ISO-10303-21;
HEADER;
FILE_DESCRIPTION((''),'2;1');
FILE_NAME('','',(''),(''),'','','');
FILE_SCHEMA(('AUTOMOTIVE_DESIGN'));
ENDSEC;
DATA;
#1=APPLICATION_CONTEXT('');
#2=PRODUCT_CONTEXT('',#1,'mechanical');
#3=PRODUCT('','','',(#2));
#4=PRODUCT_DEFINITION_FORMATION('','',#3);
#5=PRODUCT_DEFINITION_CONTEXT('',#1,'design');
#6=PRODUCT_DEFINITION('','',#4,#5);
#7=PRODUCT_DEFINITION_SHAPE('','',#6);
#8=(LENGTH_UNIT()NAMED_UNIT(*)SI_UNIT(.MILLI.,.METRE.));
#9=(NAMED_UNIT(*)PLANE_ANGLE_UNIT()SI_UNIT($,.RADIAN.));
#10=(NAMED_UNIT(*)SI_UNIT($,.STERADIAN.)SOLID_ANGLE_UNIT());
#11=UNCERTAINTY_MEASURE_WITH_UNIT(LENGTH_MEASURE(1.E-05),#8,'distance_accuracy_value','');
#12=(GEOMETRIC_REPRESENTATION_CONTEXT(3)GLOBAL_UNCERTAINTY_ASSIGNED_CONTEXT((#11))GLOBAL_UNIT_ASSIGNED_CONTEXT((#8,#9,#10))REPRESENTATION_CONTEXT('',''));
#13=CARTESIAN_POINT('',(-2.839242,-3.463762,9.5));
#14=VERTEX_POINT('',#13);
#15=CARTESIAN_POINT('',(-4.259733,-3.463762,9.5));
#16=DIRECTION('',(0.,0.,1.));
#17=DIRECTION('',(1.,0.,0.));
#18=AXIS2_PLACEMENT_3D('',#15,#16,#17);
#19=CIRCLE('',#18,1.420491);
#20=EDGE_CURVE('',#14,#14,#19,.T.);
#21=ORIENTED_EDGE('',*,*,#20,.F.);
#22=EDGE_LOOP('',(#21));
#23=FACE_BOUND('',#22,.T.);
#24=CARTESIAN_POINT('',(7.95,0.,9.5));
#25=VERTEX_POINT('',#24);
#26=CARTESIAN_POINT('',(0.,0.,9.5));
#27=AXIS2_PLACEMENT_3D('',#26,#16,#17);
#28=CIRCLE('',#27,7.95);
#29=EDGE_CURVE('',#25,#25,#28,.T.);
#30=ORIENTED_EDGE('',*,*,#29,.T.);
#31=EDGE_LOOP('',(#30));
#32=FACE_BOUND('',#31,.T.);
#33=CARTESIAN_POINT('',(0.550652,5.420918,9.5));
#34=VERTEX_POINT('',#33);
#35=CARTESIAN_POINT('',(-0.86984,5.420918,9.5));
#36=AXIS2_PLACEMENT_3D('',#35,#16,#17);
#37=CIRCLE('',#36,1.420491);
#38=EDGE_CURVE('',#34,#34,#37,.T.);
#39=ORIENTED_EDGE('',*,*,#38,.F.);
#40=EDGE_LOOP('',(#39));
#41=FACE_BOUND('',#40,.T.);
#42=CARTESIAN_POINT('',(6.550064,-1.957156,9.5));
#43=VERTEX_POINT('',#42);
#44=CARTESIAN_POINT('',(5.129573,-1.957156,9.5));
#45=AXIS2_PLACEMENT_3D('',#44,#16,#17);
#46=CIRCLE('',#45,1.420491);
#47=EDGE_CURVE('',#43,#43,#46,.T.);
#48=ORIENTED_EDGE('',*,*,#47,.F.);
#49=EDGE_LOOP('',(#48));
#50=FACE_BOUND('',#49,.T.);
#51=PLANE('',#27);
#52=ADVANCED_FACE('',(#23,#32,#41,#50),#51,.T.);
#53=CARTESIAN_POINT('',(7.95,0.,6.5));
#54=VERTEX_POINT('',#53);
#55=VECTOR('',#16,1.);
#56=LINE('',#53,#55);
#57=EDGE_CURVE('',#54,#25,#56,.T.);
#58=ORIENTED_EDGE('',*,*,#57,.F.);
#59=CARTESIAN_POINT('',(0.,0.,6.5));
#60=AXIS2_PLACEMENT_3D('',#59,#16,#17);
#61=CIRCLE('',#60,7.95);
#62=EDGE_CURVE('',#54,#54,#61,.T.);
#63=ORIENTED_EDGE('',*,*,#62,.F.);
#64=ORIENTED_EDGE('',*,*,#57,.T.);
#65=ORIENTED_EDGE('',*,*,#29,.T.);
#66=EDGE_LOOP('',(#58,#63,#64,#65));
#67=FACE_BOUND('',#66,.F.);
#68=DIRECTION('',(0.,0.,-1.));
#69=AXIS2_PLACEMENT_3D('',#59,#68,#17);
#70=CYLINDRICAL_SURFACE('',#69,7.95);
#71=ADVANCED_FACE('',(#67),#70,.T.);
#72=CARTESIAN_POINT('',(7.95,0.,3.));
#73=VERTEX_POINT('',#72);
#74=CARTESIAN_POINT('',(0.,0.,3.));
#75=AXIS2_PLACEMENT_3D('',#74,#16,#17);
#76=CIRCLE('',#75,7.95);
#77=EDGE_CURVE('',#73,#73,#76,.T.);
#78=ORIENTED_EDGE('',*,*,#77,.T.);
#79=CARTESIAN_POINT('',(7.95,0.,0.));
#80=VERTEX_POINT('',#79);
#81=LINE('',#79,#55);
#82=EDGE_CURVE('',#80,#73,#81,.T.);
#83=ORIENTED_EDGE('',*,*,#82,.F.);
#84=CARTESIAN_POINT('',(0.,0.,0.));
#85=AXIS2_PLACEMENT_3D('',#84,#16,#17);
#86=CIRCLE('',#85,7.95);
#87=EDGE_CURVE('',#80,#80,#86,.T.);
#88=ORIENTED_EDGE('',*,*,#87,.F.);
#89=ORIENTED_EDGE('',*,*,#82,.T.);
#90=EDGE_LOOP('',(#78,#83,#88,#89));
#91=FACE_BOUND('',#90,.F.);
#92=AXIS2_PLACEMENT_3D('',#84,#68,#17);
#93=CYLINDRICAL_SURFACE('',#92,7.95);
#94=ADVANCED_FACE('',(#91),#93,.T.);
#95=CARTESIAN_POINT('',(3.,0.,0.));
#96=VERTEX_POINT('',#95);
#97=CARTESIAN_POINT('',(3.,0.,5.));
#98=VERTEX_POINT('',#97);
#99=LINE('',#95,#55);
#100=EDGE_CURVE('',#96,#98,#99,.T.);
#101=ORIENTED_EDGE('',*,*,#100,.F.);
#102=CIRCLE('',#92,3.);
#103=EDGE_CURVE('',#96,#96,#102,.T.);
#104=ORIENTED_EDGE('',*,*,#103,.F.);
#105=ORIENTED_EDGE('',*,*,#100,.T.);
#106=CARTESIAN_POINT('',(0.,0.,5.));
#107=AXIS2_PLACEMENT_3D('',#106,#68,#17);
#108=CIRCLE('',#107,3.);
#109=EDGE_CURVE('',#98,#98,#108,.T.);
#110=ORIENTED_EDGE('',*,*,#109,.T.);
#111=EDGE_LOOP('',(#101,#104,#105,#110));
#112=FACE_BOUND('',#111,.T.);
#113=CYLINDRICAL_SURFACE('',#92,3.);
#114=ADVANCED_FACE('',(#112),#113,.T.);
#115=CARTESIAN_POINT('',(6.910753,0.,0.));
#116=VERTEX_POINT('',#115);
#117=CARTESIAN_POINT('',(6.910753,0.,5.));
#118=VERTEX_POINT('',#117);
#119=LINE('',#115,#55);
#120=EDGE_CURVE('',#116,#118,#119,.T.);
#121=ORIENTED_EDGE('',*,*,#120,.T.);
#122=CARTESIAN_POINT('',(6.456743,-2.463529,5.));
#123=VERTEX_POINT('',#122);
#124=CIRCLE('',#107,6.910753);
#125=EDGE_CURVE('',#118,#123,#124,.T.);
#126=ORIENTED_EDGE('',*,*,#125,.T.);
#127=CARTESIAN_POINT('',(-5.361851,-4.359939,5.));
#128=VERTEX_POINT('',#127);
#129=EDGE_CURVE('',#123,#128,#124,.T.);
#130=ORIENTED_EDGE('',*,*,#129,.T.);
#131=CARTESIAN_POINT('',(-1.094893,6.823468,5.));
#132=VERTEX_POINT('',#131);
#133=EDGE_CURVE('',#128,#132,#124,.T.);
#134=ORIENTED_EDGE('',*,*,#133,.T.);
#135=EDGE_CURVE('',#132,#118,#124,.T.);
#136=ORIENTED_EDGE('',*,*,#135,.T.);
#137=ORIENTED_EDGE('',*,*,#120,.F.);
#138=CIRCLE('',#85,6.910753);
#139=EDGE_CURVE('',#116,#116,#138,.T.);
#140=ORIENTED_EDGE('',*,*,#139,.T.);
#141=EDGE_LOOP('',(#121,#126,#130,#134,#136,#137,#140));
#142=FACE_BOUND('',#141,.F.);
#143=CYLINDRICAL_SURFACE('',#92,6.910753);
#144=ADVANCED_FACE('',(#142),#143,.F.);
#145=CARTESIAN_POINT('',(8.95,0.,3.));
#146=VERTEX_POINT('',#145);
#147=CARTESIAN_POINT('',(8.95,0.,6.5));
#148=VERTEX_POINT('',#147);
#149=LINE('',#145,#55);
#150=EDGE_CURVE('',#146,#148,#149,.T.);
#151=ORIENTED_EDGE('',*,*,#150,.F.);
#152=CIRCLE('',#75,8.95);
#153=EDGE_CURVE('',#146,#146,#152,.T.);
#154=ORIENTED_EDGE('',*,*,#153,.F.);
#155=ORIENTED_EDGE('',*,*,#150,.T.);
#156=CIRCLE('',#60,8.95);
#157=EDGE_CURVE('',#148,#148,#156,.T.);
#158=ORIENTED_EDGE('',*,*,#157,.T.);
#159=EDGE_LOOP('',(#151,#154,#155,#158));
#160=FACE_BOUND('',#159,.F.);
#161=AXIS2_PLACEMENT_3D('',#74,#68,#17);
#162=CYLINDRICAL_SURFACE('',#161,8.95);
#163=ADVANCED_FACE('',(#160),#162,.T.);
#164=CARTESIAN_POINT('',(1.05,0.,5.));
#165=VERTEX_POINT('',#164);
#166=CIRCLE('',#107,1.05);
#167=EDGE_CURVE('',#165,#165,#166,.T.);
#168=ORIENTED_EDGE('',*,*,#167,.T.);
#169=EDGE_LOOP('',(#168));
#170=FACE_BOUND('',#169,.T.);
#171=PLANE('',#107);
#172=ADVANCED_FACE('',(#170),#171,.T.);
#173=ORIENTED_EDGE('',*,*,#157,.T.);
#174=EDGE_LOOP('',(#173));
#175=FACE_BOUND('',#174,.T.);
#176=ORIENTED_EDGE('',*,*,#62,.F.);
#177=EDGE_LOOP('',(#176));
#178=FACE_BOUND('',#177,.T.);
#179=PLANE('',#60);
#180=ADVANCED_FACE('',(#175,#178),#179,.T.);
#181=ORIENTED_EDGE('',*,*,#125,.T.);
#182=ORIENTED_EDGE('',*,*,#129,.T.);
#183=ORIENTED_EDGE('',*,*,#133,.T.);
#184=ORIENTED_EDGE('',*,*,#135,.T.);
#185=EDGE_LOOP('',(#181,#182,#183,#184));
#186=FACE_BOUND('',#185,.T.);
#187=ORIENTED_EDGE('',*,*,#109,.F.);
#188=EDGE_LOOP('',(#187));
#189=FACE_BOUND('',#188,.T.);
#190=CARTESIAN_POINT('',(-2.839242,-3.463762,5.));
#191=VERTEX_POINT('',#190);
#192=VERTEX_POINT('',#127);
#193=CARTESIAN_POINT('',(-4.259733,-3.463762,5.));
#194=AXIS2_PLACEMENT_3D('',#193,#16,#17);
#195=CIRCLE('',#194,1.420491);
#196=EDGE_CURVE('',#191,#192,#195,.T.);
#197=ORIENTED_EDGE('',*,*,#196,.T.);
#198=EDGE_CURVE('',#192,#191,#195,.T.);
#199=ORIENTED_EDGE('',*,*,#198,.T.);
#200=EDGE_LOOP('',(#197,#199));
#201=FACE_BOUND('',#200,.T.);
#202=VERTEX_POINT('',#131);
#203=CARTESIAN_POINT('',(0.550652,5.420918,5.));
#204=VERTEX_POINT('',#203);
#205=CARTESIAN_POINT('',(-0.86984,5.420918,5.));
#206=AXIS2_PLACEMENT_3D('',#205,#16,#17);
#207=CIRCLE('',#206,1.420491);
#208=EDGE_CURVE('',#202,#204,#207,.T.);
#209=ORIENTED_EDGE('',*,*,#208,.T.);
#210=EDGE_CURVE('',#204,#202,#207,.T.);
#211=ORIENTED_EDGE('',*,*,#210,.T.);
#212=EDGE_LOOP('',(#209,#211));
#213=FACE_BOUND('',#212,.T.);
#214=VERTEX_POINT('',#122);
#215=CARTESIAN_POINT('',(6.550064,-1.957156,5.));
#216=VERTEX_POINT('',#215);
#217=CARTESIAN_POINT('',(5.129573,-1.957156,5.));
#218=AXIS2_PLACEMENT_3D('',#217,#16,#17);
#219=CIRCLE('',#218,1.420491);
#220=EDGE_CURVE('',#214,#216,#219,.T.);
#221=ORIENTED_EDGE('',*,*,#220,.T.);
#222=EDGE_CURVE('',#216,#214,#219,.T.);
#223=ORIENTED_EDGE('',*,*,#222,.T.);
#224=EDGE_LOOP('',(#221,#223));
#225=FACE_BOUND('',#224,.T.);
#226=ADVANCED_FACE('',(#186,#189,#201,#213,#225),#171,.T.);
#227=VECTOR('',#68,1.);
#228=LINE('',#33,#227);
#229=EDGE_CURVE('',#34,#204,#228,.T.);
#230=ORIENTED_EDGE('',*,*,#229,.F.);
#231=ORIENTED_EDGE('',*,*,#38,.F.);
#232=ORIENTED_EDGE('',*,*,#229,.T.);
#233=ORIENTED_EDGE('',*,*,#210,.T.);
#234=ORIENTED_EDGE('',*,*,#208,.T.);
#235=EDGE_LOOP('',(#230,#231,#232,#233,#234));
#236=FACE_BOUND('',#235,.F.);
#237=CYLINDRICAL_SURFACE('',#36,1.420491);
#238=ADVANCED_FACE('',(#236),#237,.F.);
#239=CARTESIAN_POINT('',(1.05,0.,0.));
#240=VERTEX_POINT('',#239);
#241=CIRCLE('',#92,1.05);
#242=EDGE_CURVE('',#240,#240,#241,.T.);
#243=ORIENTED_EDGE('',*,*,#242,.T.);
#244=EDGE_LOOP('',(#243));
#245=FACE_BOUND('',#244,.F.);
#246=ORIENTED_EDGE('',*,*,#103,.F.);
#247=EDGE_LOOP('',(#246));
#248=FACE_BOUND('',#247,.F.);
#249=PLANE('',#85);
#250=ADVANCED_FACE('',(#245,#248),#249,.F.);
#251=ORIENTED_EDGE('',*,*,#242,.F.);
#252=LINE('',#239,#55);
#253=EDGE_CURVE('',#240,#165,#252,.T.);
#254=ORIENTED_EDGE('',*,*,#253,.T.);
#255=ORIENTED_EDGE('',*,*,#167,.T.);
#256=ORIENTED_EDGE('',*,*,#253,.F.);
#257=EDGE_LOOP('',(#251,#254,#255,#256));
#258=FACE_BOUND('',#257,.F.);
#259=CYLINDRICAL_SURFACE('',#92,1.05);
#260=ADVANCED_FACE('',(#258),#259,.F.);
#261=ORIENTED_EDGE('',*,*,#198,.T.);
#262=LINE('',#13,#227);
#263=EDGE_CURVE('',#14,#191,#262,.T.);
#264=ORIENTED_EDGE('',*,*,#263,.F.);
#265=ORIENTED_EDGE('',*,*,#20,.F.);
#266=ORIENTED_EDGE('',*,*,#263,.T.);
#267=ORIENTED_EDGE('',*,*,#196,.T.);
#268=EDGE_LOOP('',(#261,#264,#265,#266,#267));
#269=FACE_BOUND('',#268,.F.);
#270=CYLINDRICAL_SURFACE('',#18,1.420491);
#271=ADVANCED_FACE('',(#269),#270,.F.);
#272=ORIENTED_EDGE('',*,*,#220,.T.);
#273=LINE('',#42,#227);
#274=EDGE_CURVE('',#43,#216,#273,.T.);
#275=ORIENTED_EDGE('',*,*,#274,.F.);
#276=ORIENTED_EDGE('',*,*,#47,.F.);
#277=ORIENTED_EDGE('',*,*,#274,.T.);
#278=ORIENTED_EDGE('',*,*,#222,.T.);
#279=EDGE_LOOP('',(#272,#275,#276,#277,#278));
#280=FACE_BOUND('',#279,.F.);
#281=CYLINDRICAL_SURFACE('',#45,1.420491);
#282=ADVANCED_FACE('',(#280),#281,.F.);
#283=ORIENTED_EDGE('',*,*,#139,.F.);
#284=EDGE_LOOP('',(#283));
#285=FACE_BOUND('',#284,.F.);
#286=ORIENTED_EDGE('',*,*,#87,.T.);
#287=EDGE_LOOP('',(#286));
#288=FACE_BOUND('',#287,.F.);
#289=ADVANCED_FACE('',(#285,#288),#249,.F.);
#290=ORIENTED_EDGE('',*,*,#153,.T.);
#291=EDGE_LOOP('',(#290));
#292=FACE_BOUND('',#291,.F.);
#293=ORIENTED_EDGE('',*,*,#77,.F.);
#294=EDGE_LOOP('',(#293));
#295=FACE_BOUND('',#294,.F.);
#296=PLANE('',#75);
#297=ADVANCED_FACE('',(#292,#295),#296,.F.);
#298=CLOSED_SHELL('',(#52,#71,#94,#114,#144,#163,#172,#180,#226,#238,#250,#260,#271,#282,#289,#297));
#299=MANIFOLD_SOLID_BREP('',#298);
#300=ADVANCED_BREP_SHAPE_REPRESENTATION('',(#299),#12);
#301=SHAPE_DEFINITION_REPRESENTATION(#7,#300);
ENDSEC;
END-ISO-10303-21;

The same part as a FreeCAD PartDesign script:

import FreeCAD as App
import Part
import Sketcher

doc = App.newDocument("Part")
params = doc.addObject("Spreadsheet::Sheet", "Params")
for row, (alias, value) in enumerate([
    ("sketch1_diameter", "15.9 mm"),
    ("pad1_length", "3 mm"),
    ("sketch2_diameter", "17.9 mm"),
    ("pad2_length", "3.5 mm"),
    ("sketch3_diameter", "15.9 mm"),
    ("pad3_length", "3 mm"),
    ("sketch5_diameter", "6 mm"),
    ("sketch5_diameter2", "2.1 mm"),
    ("pocket2_length", "5 mm"),
], start=1):
    params.set(f"A{row}", alias)
    params.set(f"B{row}", "=" + value)
    params.setAlias(f"B{row}", alias)

body = doc.addObject("PartDesign::Body", "Body")

sketch1 = body.newObject("Sketcher::SketchObject", "Sketch")
sketch1.AttachmentSupport = (doc.getObject("XY_Plane"), [""])
sketch1.MapMode = "FlatFace"
sketch1.addGeometry(Part.Circle(App.Vector(0, 0, 0), App.Vector(0, 0, 1), 8), False)
sketch1.addConstraint([
    Sketcher.Constraint("Coincident", 0, 3, -1, 1),
    Sketcher.Constraint("Diameter", 0, 15.9),
])
sketch1.setExpression("Constraints[1]", "Params.sketch1_diameter")
pad1 = body.newObject("PartDesign::Pad", "Pad")
pad1.Profile = sketch1
pad1.setExpression("Length", "Params.pad1_length")

sketch2 = body.newObject("Sketcher::SketchObject", "Sketch001")
sketch2.AttachmentSupport = (doc.getObject("XY_Plane"), [""])
sketch2.MapMode = "FlatFace"
sketch2.AttachmentOffset = App.Placement(App.Vector(0, 0, 3), App.Rotation())
sketch2.addGeometry(Part.Circle(App.Vector(0, 0, 0), App.Vector(0, 0, 1), 9), False)
sketch2.addConstraint([
    Sketcher.Constraint("Coincident", 0, 3, -1, 1),
    Sketcher.Constraint("Diameter", 0, 17.9),
])
sketch2.setExpression("Constraints[1]", "Params.sketch2_diameter")
pad2 = body.newObject("PartDesign::Pad", "Pad001")
pad2.Profile = sketch2
pad2.setExpression("Length", "Params.pad2_length")

sketch3 = body.newObject("Sketcher::SketchObject", "Sketch002")
sketch3.AttachmentSupport = (doc.getObject("XY_Plane"), [""])
sketch3.MapMode = "FlatFace"
sketch3.AttachmentOffset = App.Placement(App.Vector(0, 0, 6.5), App.Rotation())
sketch3.addGeometry(Part.Circle(App.Vector(0, 0, 0), App.Vector(0, 0, 1), 8), False)
sketch3.addConstraint([
    Sketcher.Constraint("Coincident", 0, 3, -1, 1),
    Sketcher.Constraint("Diameter", 0, 15.9),
])
sketch3.setExpression("Constraints[1]", "Params.sketch3_diameter")
pad3 = body.newObject("PartDesign::Pad", "Pad002")
pad3.Profile = sketch3
pad3.setExpression("Length", "Params.pad3_length")

sketch4 = body.newObject("Sketcher::SketchObject", "Sketch003")
sketch4.AttachmentSupport = (doc.getObject("XY_Plane"), [""])
sketch4.MapMode = "FlatFace"
sketch4.AttachmentOffset = App.Placement(App.Vector(0, 0, 9.5), App.Rotation())
sketch4.addGeometry([
    Part.Circle(App.Vector(-0.9, 5.4, 0), App.Vector(0, 0, 1), 1.4),
    Part.Circle(App.Vector(-4.3, -3.5, 0), App.Vector(0, 0, 1), 1.4),
    Part.Circle(App.Vector(5.1, -2, 0), App.Vector(0, 0, 1), 1.4),
], False)
sketch4.addConstraint([
    Sketcher.Constraint("Equal", 0, 1),
    Sketcher.Constraint("Equal", 1, 2),
    Sketcher.Constraint("Diameter", 0, 2.840983),
    Sketcher.Constraint("DistanceX", 0, 3, -1, 1, 0.86984),
    Sketcher.Constraint("DistanceY", -1, 1, 0, 3, 5.420918),
    Sketcher.Constraint("DistanceY", 1, 3, 0, 3, 8.884681),
    Sketcher.Constraint("DistanceX", 1, 3, -1, 1, 4.259733),
    Sketcher.Constraint("DistanceX", -1, 1, 2, 3, 5.129573),
    Sketcher.Constraint("DistanceY", 2, 3, -1, 1, 1.957156),
])
pocket1 = body.newObject("PartDesign::Pocket", "Pocket")
pocket1.Profile = sketch4
pocket1.Type = "ThroughAll"

sketch5 = body.newObject("Sketcher::SketchObject", "Sketch004")
sketch5.AttachmentSupport = (doc.getObject("XY_Plane"), [""])
sketch5.MapMode = "FlatFace"
sketch5.addGeometry([
    Part.Circle(App.Vector(0, 0, 0), App.Vector(0, 0, 1), 6.9),
    Part.Circle(App.Vector(0, 0, 0), App.Vector(0, 0, 1), 3),
    Part.Circle(App.Vector(0, 0, 0), App.Vector(0, 0, 1), 1.1),
], False)
sketch5.addConstraint([
    Sketcher.Constraint("Coincident", 0, 3, -1, 1),
    Sketcher.Constraint("Coincident", 1, 3, -1, 1),
    Sketcher.Constraint("Coincident", 2, 3, -1, 1),
    Sketcher.Constraint("Diameter", 1, 6.0),
    Sketcher.Constraint("Diameter", 2, 2.1),
    Sketcher.Constraint("Diameter", 0, 13.821506),
])
sketch5.setExpression("Constraints[3]", "Params.sketch5_diameter")
sketch5.setExpression("Constraints[4]", "Params.sketch5_diameter2")
pocket2 = body.newObject("PartDesign::Pocket", "Pocket001")
pocket2.Profile = sketch5
pocket2.setExpression("Length", "Params.pocket2_length")
pocket2.Reversed = True

doc.recompute()
